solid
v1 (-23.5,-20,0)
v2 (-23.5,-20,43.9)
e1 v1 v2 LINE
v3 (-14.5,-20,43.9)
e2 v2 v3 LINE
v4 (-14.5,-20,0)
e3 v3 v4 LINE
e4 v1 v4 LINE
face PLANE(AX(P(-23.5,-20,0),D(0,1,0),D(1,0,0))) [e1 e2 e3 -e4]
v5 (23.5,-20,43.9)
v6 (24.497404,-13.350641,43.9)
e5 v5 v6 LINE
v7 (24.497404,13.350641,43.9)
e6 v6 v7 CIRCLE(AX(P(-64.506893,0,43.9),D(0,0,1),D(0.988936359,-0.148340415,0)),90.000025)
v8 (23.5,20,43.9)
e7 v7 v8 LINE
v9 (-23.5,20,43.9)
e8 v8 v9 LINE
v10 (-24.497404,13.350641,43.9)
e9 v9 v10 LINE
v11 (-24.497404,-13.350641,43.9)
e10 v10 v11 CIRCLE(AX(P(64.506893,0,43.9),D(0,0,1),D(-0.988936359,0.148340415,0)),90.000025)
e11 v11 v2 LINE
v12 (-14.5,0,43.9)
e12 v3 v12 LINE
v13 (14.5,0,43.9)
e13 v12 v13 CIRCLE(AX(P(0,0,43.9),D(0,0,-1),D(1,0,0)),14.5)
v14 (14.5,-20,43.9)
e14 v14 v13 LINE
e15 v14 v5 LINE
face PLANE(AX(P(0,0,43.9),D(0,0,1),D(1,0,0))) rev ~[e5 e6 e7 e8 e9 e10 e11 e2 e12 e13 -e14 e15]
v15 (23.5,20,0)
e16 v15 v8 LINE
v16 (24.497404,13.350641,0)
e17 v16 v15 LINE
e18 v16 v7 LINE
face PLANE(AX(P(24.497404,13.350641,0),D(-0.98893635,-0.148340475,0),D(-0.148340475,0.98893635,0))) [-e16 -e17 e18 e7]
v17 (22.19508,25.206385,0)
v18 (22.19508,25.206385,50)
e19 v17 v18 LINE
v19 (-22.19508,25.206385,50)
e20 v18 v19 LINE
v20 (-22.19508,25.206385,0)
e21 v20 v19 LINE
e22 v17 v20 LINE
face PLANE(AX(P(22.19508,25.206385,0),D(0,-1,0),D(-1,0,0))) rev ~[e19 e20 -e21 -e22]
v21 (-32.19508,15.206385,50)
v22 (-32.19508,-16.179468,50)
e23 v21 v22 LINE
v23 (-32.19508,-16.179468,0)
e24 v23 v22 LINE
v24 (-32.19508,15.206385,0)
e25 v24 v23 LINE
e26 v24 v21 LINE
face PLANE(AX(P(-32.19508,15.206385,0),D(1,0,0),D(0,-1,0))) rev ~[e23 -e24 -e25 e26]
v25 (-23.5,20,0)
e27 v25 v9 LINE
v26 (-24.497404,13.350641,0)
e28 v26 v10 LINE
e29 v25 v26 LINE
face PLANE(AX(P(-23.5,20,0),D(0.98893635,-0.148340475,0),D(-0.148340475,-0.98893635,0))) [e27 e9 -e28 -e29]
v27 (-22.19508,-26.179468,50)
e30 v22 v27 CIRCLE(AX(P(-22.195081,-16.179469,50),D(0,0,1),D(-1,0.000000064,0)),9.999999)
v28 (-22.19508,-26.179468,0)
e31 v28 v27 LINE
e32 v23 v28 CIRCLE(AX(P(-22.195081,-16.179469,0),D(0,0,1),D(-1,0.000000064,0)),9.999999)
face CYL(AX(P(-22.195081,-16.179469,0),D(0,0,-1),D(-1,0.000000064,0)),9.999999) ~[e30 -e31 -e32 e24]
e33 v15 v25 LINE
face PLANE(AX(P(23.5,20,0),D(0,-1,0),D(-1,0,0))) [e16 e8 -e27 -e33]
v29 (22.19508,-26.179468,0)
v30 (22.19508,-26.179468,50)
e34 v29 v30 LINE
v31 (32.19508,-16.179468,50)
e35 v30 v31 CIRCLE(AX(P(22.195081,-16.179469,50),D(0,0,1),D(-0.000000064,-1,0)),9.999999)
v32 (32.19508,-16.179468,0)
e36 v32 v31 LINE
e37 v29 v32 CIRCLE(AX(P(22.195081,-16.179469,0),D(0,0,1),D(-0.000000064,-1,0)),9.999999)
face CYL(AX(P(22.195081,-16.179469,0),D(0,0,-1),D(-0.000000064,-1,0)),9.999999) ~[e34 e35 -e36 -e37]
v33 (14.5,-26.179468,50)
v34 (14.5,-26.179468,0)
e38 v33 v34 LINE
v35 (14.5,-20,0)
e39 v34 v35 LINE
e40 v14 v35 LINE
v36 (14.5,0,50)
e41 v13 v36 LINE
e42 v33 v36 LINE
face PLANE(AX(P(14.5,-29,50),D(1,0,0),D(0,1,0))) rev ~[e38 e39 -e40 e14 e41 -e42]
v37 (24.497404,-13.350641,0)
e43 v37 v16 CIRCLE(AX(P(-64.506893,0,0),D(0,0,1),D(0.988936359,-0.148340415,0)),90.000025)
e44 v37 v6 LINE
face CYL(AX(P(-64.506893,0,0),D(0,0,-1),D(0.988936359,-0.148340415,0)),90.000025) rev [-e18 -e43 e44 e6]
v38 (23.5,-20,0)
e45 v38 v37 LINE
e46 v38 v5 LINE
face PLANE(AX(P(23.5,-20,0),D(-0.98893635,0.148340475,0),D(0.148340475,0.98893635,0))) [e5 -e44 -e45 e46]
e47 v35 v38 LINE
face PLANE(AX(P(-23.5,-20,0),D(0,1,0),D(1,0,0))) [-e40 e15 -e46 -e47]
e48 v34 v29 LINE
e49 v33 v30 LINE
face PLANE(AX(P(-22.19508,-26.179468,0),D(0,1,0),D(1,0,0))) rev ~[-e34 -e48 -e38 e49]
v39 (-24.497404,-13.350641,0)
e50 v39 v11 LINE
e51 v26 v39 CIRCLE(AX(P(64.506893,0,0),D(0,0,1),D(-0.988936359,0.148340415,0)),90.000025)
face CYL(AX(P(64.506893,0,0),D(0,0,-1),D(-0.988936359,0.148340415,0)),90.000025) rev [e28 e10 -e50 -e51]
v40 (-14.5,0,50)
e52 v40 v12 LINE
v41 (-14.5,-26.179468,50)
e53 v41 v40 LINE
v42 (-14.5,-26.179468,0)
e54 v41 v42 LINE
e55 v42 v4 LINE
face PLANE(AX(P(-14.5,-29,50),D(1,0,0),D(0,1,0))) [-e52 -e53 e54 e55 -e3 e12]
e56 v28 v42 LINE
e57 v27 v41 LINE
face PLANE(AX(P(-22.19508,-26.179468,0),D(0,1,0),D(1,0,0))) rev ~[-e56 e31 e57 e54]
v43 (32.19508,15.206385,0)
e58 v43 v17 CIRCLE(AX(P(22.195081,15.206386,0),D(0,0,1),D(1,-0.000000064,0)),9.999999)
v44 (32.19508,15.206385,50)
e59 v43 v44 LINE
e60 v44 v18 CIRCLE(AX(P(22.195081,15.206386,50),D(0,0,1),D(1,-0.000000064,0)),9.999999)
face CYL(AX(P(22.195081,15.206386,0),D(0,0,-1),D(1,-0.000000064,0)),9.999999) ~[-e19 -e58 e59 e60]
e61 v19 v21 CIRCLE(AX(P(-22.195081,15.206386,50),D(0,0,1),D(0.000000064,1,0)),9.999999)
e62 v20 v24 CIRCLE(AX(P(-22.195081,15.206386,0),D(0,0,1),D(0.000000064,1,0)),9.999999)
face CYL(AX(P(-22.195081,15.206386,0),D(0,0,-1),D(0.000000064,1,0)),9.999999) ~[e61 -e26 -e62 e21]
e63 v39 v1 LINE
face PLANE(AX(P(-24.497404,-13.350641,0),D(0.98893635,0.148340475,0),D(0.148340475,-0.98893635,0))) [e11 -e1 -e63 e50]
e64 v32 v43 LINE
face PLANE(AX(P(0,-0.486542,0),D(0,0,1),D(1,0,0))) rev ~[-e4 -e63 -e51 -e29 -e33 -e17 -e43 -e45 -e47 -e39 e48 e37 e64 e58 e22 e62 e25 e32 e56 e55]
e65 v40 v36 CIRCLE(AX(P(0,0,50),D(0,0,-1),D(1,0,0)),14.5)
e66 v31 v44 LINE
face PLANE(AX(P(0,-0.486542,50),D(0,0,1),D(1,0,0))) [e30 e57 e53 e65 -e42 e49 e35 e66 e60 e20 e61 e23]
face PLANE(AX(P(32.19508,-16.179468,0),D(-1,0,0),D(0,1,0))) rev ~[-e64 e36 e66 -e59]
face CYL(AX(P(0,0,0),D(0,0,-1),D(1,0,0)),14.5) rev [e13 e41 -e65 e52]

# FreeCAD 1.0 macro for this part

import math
import FreeCAD as App
import Part
import Sketcher
from FreeCAD import Vector


def add_polygon(sketch, points):
    """Adds a closed chain of lines whose ends are joined by coincident constraints."""
    first, n = sketch.GeometryCount, len(points)
    for a, b in zip(points, points[1:] + points[:1]):
        sketch.addGeometry(Part.LineSegment(App.Vector(*a, 0), App.Vector(*b, 0)), False)
    for i in range(n):
        sketch.addConstraint(Sketcher.Constraint("Coincident", first + i, 2, first + (i + 1) % n, 1))

doc = App.newDocument("Part")
body = doc.addObject("PartDesign::Body", "Body")

# Sketch on XY plane
sketch1 = body.newObject("Sketcher::SketchObject", "Sketch")
sketch1.AttachmentSupport = (doc.getObject("XY_Plane"), [""])
sketch1.MapMode = "FlatFace"
sketch1.addGeometry([
    Part.ArcOfCircle(Part.Circle(Vector(22.195081, 15.206386, 0), Vector(0, 0, 1), 9.999999), math.radians(-0.000004), math.radians(90.000004)),  # 0
    Part.LineSegment(Vector(22.19508, 25.206385, 0), Vector(-22.19508, 25.206385, 0)),  # 1
    Part.ArcOfCircle(Part.Circle(Vector(-22.195081, 15.206386, 0), Vector(0, 0, 1), 9.999999), math.radians(89.999996), math.radians(180.000004)),  # 2
    Part.LineSegment(Vector(-32.19508, 15.206385, 0), Vector(-32.19508, -16.179468, 0)),  # 3
    Part.ArcOfCircle(Part.Circle(Vector(-22.195081, -16.179469, 0), Vector(0, 0, 1), 9.999999), math.radians(179.999996), math.radians(270.000004)),  # 4
    Part.LineSegment(Vector(-22.19508, -26.179468, 0), Vector(22.19508, -26.179468, 0)),  # 5
    Part.ArcOfCircle(Part.Circle(Vector(22.195081, -16.179469, 0), Vector(0, 0, 1), 9.999999), math.radians(-90.000004), math.radians(0.000004)),  # 6
    Part.LineSegment(Vector(32.19508, -16.179468, 0), Vector(32.19508, 15.206385, 0)),  # 7
], False)
sketch1.addConstraint([
    Sketcher.Constraint("Tangent", 0, 2, 1, 1),
    Sketcher.Constraint("Tangent", 1, 2, 2, 1),
    Sketcher.Constraint("Tangent", 2, 2, 3, 1),
    Sketcher.Constraint("Tangent", 3, 2, 4, 1),
    Sketcher.Constraint("Tangent", 4, 2, 5, 1),
    Sketcher.Constraint("Tangent", 5, 2, 6, 1),
    Sketcher.Constraint("Tangent", 6, 2, 7, 1),
    Sketcher.Constraint("Tangent", 7, 2, 0, 1),
    Sketcher.Constraint("Horizontal", 1),
    Sketcher.Constraint("Vertical", 3),
    Sketcher.Constraint("Horizontal", 5),
    Sketcher.Constraint("Vertical", 7),
    Sketcher.Constraint("Equal", 0, 2),
    Sketcher.Constraint("Equal", 2, 4),
    Sketcher.Constraint("Equal", 4, 6),
    Sketcher.Constraint("Radius", 0, 9.999999),
    Sketcher.Constraint("DistanceX", 1, 2, 1, 1, 44.39016),
    Sketcher.Constraint("DistanceY", 3, 2, 3, 1, 31.385853),
    Sketcher.Constraint("DistanceX", -1, 1, 0, 3, 22.195081),
    Sketcher.Constraint("DistanceY", 4, 3, -1, 1, 16.179469),
])
pad1 = body.newObject("PartDesign::Pad", "Pad")
pad1.Profile = sketch1
pad1.Length = 50

# Sketch on XY plane
sketch2 = body.newObject("Sketcher::SketchObject", "Sketch001")
sketch2.AttachmentSupport = (doc.getObject("XY_Plane"), [""])
sketch2.MapMode = "FlatFace"
sketch2.addGeometry(Part.Circle(Vector(0, 0, 0), Vector(0, 0, 1), 14.5), False)
sketch2.addConstraint([
    Sketcher.Constraint("Coincident", 0, 3, -1, 1),
    Sketcher.Constraint("Diameter", 0, 29.0),
])
pocket1 = body.newObject("PartDesign::Pocket", "Pocket")
pocket1.Profile = sketch2
pocket1.Length = 75
pocket1.Reversed = True

# Sketch on XY plane
sketch3 = body.newObject("Sketcher::SketchObject", "Sketch002")
sketch3.AttachmentSupport = (doc.getObject("XY_Plane"), [""])
sketch3.MapMode = "FlatFace"
sketch3.addGeometry([
    Part.LineSegment(Vector(23.5, 20, 0), Vector(-23.5, 20, 0)),  # 0
    Part.LineSegment(Vector(-23.5, 20, 0), Vector(-24.497404, 13.350641, 0)),  # 1
    Part.ArcOfCircle(Part.Circle(Vector(64.506893, 0, 0), Vector(0, 0, 1), 90.000025), math.radians(171.469237), math.radians(188.530763)),  # 2
    Part.LineSegment(Vector(-24.497404, -13.350641, 0), Vector(-23.5, -20, 0)),  # 3
    Part.LineSegment(Vector(-23.5, -20, 0), Vector(23.5, -20, 0)),  # 4
    Part.LineSegment(Vector(23.5, -20, 0), Vector(24.497404, -13.350641, 0)),  # 5
    Part.ArcOfCircle(Part.Circle(Vector(-64.506893, 0, 0), Vector(0, 0, 1), 90.000025), math.radians(-8.530763), math.radians(8.530763)),  # 6
    Part.LineSegment(Vector(24.497404, 13.350641, 0), Vector(23.5, 20, 0)),  # 7
], False)
sketch3.addConstraint([
    Sketcher.Constraint("Coincident", 0, 2, 1, 1),
    Sketcher.Constraint("Tangent", 1, 2, 2, 1),
    Sketcher.Constraint("Tangent", 2, 2, 3, 1),
    Sketcher.Constraint("Coincident", 3, 2, 4, 1),
    Sketcher.Constraint("Coincident", 4, 2, 5, 1),
    Sketcher.Constraint("Tangent", 5, 2, 6, 1),
    Sketcher.Constraint("Tangent", 6, 2, 7, 1),
    Sketcher.Constraint("Coincident", 7, 2, 0, 1),
    Sketcher.Constraint("Horizontal", 0),
    Sketcher.Constraint("Horizontal", 4),
    Sketcher.Constraint("Equal", 2, 6),
    Sketcher.Constraint("Symmetric", 2, 3, 6, 3, -1, 1),
    Sketcher.Constraint("Symmetric", 0, 2, 4, 2, -1, 1),
    Sketcher.Constraint("Symmetric", 2, 2, 5, 2, -2),
    Sketcher.Constraint("Parallel", 3, 7),
    Sketcher.Constraint("DistanceX", 0, 2, 0, 1, 47.0),
    Sketcher.Constraint("DistanceY", -1, 1, 0, 2, 20.0),
    Sketcher.Constraint("Radius", 2, 90.000025),
    Sketcher.Constraint("Distance", 1, 6.723748),
])
pocket2 = body.newObject("PartDesign::Pocket", "Pocket001")
pocket2.Profile = sketch3
pocket2.Length = 43.9
pocket2.Reversed = True

# Sketch on XY plane
sketch4 = body.newObject("Sketcher::SketchObject", "Sketch003")
sketch4.AttachmentSupport = (doc.getObject("XY_Plane"), [""])
sketch4.MapMode = "FlatFace"
sketch4.AttachmentOffset = App.Placement(Vector(0, 0, 50), App.Rotation())
add_polygon(sketch4, [(-14.5, 0), (-14.5, -29), (14.5, -29), (14.5, 0)])  # lines 0-3
sketch4.addConstraint([
    Sketcher.Constraint("Vertical", 0),
    Sketcher.Constraint("Horizontal", 1),
    Sketcher.Constraint("Vertical", 2),
    Sketcher.Constraint("Horizontal", 3),
    Sketcher.Constraint("Symmetric", 2, 2, 3, 2, -1, 1),
    Sketcher.Constraint("Equal", 3, 0),
    Sketcher.Constraint("DistanceX", 1, 1, 1, 2, 29.0),
])
pocket3 = body.newObject("PartDesign::Pocket", "Pocket002")
pocket3.Profile = sketch4
pocket3.Length = 59.8

doc.recompute()
